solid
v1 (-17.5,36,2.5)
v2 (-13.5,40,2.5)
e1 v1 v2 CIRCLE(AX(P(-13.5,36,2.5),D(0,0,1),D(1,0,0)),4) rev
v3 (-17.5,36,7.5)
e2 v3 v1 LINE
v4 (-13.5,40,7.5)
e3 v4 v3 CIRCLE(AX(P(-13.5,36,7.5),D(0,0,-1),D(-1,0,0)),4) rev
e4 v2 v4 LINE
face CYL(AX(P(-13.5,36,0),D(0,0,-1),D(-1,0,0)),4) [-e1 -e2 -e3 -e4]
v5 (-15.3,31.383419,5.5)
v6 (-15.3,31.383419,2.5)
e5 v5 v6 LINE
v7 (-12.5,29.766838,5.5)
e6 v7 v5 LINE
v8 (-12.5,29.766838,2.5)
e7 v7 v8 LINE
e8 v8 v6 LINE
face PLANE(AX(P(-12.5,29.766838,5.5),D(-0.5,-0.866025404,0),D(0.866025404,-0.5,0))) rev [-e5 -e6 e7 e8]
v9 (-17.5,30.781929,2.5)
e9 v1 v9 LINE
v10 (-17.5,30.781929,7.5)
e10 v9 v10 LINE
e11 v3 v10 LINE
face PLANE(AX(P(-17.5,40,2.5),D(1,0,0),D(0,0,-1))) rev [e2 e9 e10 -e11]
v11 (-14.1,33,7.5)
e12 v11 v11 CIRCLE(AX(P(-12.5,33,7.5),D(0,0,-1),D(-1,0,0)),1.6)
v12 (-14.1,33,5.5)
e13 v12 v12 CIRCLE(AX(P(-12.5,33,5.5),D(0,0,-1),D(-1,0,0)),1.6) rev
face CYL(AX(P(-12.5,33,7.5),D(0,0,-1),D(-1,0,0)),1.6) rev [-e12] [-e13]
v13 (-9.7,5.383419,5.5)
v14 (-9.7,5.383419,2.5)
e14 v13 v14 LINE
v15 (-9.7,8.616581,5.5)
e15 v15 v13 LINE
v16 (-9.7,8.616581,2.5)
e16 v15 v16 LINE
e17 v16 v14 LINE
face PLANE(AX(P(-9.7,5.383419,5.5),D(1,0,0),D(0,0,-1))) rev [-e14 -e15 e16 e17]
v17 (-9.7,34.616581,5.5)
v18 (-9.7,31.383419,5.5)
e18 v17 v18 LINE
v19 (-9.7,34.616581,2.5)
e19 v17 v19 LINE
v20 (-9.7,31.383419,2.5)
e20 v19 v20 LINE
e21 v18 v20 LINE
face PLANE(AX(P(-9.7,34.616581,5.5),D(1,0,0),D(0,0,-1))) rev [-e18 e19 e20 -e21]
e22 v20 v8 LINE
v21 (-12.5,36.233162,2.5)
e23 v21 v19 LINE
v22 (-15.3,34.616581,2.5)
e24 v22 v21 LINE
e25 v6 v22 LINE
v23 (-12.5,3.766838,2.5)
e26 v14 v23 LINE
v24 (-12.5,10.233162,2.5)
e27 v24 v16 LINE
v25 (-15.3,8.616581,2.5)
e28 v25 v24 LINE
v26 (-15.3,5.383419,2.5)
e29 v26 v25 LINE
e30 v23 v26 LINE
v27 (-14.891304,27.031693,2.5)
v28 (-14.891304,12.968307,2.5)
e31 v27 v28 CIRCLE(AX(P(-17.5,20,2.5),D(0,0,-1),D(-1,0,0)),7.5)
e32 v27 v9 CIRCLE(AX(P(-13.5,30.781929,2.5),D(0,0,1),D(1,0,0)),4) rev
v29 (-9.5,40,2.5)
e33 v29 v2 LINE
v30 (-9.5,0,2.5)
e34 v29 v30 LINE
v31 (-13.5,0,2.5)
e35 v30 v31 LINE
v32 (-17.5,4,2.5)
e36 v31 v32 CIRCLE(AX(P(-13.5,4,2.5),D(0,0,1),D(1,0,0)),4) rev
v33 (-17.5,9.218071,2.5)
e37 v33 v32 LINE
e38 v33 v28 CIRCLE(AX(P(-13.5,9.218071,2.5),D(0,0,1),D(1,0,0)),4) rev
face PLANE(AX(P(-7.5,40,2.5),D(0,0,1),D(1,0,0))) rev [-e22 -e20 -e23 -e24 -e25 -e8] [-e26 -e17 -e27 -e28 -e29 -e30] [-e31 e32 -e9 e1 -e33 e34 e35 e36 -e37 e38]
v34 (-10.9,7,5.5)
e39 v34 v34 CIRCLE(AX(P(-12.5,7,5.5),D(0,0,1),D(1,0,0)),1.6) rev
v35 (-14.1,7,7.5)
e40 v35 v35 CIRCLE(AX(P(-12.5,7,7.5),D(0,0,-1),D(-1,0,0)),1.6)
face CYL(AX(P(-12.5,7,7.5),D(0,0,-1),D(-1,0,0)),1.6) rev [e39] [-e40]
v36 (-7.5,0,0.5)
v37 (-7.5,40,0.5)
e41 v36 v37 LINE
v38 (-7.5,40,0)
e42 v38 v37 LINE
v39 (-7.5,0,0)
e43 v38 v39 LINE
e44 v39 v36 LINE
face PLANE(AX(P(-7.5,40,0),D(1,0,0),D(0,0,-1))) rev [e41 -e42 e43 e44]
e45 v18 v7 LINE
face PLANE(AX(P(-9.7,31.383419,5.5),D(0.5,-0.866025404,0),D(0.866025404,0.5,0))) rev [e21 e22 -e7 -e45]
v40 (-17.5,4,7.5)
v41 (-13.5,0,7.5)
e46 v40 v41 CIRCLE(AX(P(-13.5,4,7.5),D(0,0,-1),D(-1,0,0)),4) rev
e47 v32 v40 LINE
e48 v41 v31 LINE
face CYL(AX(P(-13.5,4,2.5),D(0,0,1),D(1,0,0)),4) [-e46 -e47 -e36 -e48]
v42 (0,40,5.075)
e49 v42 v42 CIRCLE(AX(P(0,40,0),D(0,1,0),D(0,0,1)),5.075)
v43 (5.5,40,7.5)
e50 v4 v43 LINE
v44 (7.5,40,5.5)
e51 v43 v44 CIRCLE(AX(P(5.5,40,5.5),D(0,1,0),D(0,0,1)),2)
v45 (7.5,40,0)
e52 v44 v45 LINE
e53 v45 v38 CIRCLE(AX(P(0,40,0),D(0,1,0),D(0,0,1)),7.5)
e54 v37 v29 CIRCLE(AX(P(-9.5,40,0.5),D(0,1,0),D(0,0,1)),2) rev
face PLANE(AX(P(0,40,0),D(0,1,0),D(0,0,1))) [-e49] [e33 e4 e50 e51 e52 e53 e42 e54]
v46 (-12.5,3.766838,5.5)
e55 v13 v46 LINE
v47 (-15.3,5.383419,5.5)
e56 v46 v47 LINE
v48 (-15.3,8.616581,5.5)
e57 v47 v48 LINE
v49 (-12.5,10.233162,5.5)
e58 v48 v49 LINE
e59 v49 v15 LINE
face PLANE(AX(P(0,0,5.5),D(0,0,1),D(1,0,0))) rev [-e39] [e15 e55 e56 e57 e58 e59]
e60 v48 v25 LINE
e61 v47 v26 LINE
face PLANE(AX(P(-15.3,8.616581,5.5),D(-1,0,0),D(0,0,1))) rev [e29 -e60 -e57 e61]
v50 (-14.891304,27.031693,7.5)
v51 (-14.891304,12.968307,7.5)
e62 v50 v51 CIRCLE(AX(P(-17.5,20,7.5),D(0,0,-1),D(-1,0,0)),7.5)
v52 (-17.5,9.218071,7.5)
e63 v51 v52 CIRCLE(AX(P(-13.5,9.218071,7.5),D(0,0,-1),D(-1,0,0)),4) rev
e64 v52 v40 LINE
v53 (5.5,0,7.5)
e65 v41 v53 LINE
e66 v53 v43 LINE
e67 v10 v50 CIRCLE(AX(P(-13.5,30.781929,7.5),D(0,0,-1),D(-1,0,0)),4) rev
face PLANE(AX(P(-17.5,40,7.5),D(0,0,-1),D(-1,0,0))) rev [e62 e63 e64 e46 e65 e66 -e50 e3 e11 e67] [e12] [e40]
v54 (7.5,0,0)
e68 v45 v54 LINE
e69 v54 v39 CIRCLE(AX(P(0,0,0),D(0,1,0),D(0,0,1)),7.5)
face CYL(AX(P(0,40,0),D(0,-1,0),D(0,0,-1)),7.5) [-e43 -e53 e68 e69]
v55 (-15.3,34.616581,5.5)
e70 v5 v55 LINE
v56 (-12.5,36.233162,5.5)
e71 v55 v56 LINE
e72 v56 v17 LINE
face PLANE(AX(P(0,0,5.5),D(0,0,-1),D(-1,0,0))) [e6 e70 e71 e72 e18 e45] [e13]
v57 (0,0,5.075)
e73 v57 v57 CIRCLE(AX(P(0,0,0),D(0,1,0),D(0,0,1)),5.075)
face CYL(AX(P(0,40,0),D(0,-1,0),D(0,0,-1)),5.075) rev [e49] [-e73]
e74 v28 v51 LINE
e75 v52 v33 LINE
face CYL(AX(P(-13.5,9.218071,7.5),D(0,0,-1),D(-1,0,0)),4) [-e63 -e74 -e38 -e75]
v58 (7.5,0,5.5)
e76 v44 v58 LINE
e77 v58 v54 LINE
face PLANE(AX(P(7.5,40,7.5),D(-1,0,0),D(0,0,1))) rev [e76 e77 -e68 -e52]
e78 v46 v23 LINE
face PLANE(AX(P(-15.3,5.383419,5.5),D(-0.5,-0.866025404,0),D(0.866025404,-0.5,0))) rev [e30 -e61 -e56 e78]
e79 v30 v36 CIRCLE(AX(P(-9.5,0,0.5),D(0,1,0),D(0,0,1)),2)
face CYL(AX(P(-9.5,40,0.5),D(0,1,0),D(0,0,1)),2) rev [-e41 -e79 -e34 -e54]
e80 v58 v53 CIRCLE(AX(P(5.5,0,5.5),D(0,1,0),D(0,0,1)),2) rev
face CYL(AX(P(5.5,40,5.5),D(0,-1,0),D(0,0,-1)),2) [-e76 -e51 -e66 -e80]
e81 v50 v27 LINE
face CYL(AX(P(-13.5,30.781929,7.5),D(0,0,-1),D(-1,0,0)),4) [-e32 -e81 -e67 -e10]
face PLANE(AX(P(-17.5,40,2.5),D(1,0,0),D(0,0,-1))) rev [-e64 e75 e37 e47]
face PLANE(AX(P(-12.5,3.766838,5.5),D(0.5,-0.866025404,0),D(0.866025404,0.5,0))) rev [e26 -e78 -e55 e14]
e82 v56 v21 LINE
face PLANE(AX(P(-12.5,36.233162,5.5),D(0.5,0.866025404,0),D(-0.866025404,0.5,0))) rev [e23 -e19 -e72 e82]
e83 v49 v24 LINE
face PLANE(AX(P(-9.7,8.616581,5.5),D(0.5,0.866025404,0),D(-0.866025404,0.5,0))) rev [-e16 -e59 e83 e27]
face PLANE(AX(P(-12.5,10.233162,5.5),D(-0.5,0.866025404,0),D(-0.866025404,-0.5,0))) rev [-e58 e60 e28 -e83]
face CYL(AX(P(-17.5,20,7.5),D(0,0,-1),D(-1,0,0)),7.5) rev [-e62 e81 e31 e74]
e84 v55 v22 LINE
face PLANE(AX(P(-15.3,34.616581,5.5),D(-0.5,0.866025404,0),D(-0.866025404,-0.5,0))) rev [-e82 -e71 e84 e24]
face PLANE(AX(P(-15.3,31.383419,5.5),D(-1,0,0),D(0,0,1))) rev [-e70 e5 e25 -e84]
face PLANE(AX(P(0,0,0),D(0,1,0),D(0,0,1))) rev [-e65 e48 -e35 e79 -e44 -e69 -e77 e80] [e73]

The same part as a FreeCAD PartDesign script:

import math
import FreeCAD as App
import Part
import Sketcher

V = App.Vector
Q = App.Units.Quantity


def edges_at(feature, points):
    """Names of the edges that pass closest to the given points."""
    edges = feature.Shape.Edges
    near = lambda p: min(range(len(edges)), key=lambda i: edges[i].distToShape(Part.Vertex(*p))[0])
    return sorted({f"Edge{near(p) + 1}" for p in points})


def add_polygon(sketch, points):
    """Adds a closed chain of lines whose ends are joined by coincident constraints."""
    first, n = sketch.GeometryCount, len(points)
    for a, b in zip(points, points[1:] + points[:1]):
        sketch.addGeometry(Part.LineSegment(App.Vector(*a, 0), App.Vector(*b, 0)), False)
    for i in range(n):
        sketch.addConstraint(Sketcher.Constraint("Coincident", first + i, 2, first + (i + 1) % n, 1))

doc = App.newDocument("Part")
body = doc.addObject("PartDesign::Body", "Body")

# Sketch on XZ plane
sketch1 = doc.addObject("Sketcher::SketchObject", "Sketch")
body.addObject(sketch1)
sketch1.AttachmentSupport = (doc.XZ_Plane, [""])
sketch1.MapMode = "FlatFace"
sketch1.addGeometry([
    Part.LineSegment(V(-17.5, 7.5, 0), V(7.5, 7.5, 0)),  # 0
    Part.LineSegment(V(7.5, 7.5, 0), V(7.5, 0, 0)),  # 1
    Part.ArcOfCircle(Part.Circle(V(0, 0, 0), V(0, 0, 1), 7.5), math.radians(180), math.radians(360)),  # 2
    Part.LineSegment(V(-7.5, 0, 0), V(-7.5, 2.5, 0)),  # 3
    Part.LineSegment(V(-7.5, 2.5, 0), V(-17.5, 2.5, 0)),  # 4
    Part.LineSegment(V(-17.5, 2.5, 0), V(-17.5, 7.5, 0)),  # 5
    Part.Circle(V(0, 0, 0), V(0, 0, 1), 5.1),  # 6
], False)
sketch1.addConstraint([
    Sketcher.Constraint("Coincident", 0, 2, 1, 1),
    Sketcher.Constraint("Tangent", 1, 2, 2, 2),
    Sketcher.Constraint("Tangent", 2, 1, 3, 1),
    Sketcher.Constraint("Coincident", 3, 2, 4, 1),
    Sketcher.Constraint("Coincident", 4, 2, 5, 1),
    Sketcher.Constraint("Coincident", 5, 2, 0, 1),
    Sketcher.Constraint("Horizontal", 0),
    Sketcher.Constraint("Vertical", 1),
    Sketcher.Constraint("Vertical", 3),
    Sketcher.Constraint("Horizontal", 4),
    Sketcher.Constraint("Vertical", 5),
    Sketcher.Constraint("Coincident", 2, 3, -1, 1),
    Sketcher.Constraint("Coincident", 6, 3, -1, 1),
    Sketcher.Constraint("Radius", 2, 7.5),
    Sketcher.Constraint("Diameter", 6, 10.15),
    Sketcher.Constraint("DistanceX", 0, 1, 0, 2, 25.0),
    Sketcher.Constraint("DistanceY", 5, 1, 5, 2, 5.0),
    Sketcher.Constraint("DistanceY", 1, 2, 1, 1, 7.5),
])
pad1 = doc.addObject("PartDesign::Pad", "Pad")
body.addObject(pad1)
pad1.Profile = sketch1
pad1.Length = 40
pad1.Reversed = True

# Sketch on XY plane
sketch2 = doc.addObject("Sketcher::SketchObject", "Sketch001")
body.addObject(sketch2)
sketch2.AttachmentSupport = (doc.XY_Plane, [""])
sketch2.MapMode = "FlatFace"
sketch2.AttachmentOffset = App.Placement(V(0, 0, 2.5), App.Rotation())
sketch2.addGeometry([
    Part.Circle(V(-12.5, 7, 0), V(0, 0, 1), 1.6),
    Part.Circle(V(-12.5, 33, 0), V(0, 0, 1), 1.6),
], False)
sketch2.addConstraint([
    Sketcher.Constraint("Equal", 0, 1),
    Sketcher.Constraint("Vertical", 0, 3, 1, 3),
    Sketcher.Constraint("Diameter", 0, 3.2),
    Sketcher.Constraint("DistanceY", -1, 1, 0, 3, 7.0),
    Sketcher.Constraint("DistanceY", -1, 1, 1, 3, 33.0),
    Sketcher.Constraint("DistanceX", 0, 3, -1, 1, 12.5),
])
pocket1 = doc.addObject("PartDesign::Pocket", "Pocket")
body.addObject(pocket1)
pocket1.Profile = sketch2
pocket1.Type = "ThroughAll"
pocket1.Reversed = True

# Sketch on XY plane
sketch3 = doc.addObject("Sketcher::SketchObject", "Sketch002")
body.addObject(sketch3)
sketch3.AttachmentSupport = (doc.XY_Plane, [""])
sketch3.MapMode = "FlatFace"
sketch3.AttachmentOffset = App.Placement(V(0, 0, 2.5), App.Rotation())
add_polygon(sketch3, [(-15.3, 31.4), (-15.3, 34.6), (-12.5, 36.2), (-9.7, 34.6), (-9.7, 31.4), (-12.5, 29.8)])  # lines 0-5
add_polygon(sketch3, [(-15.3, 8.6), (-12.5, 10.2), (-9.7, 8.6), (-9.7, 5.4), (-12.5, 3.8), (-15.3, 5.4)])  # lines 6-11
sketch3.addConstraint([
    Sketcher.Constraint("Vertical", 0),
    Sketcher.Constraint("Vertical", 3),
    Sketcher.Constraint("Vertical", 8),
    Sketcher.Constraint("Vertical", 11),
    Sketcher.Constraint("Parallel", 1, 4),
    Sketcher.Constraint("Parallel", 2, 5),
    Sketcher.Constraint("Parallel", 4, 6),
    Sketcher.Constraint("Parallel", 5, 7),
    Sketcher.Constraint("Parallel", 6, 9),
    Sketcher.Constraint("Parallel", 7, 10),
    Sketcher.Constraint("Horizontal", 0, 2, 2, 2),
    Sketcher.Constraint("Horizontal", 3, 2, 5, 2),
    Sketcher.Constraint("Horizontal", 8, 2, 10, 2),
    Sketcher.Constraint("Horizontal", 7, 2, 11, 2),
    Sketcher.Constraint("Vertical", 1, 2, 4, 2),
    Sketcher.Constraint("Vertical", 4, 2, 6, 2),
    Sketcher.Constraint("Vertical", 3, 2, 7, 2),
    Sketcher.Constraint("Equal", 3, 8),
    Sketcher.Constraint("Angle", 1, Q("30 deg")),
    Sketcher.Constraint("DistanceY", 7, 2, 2, 2, 26.0),
    Sketcher.Constraint("DistanceX", 0, 2, -1, 1, 15.3),
    Sketcher.Constraint("DistanceX", 1, 2, -1, 1, 12.5),
    Sketcher.Constraint("DistanceY", 0, 1, 0, 2, 3.233162),
    Sketcher.Constraint("DistanceY", -1, 1, 0, 2, 34.616581),
])
pocket2 = doc.addObject("PartDesign::Pocket", "Pocket001")
body.addObject(pocket2)
pocket2.Profile = sketch3
pocket2.Length = 3
pocket2.Reversed = True

# Sketch on XY plane
sketch4 = doc.addObject("Sketcher::SketchObject", "Sketch003")
body.addObject(sketch4)
sketch4.AttachmentSupport = (doc.XY_Plane, [""])
sketch4.MapMode = "FlatFace"
sketch4.AttachmentOffset = App.Placement(V(0, 0, 2.5), App.Rotation())
sketch4.addGeometry([
    Part.LineSegment(V(-18, 12, 0), V(-18, 28, 0)),
    Part.ArcOfCircle(Part.Circle(V(-18, 20, 0), V(0, 0, 1), 8), math.radians(-90), math.radians(90)),
], False)
sketch4.addConstraint([
    Sketcher.Constraint("Coincident", 0, 1, 1, 1),
    Sketcher.Constraint("Coincident", 1, 2, 0, 2),
    Sketcher.Constraint("Vertical", 0),
    Sketcher.Constraint("Vertical", 1, 3, 0, 1),
    Sketcher.Constraint("Radius", 1, 7.5),
    Sketcher.Constraint("DistanceY", -1, 1, 1, 3, 20.0),
    Sketcher.Constraint("DistanceX", 1, 3, -1, 1, 17.5),
])
pocket3 = doc.addObject("PartDesign::Pocket", "Pocket002")
body.addObject(pocket3)
pocket3.Profile = sketch4
pocket3.Type = "ThroughAll"
pocket3.Reversed = True
doc.recompute()

fillet = doc.addObject("PartDesign::Fillet", "Fillet")
body.addObject(fillet)
fillet.Base = (pocket3, edges_at(pocket3, [
    (-17.5, 40, 5),
    (-17.5, 12.5, 5),
    (-17.5, 27.5, 5),
    (-17.5, 0, 5),
]))
fillet.Radius = 4
doc.recompute()

fillet2 = doc.addObject("PartDesign::Fillet", "Fillet001")
body.addObject(fillet2)
fillet2.Base = (fillet, edges_at(fillet, [(-7.5, 20, 2.5), (7.5, 20, 7.5)]))
fillet2.Radius = 2

doc.recompute()
